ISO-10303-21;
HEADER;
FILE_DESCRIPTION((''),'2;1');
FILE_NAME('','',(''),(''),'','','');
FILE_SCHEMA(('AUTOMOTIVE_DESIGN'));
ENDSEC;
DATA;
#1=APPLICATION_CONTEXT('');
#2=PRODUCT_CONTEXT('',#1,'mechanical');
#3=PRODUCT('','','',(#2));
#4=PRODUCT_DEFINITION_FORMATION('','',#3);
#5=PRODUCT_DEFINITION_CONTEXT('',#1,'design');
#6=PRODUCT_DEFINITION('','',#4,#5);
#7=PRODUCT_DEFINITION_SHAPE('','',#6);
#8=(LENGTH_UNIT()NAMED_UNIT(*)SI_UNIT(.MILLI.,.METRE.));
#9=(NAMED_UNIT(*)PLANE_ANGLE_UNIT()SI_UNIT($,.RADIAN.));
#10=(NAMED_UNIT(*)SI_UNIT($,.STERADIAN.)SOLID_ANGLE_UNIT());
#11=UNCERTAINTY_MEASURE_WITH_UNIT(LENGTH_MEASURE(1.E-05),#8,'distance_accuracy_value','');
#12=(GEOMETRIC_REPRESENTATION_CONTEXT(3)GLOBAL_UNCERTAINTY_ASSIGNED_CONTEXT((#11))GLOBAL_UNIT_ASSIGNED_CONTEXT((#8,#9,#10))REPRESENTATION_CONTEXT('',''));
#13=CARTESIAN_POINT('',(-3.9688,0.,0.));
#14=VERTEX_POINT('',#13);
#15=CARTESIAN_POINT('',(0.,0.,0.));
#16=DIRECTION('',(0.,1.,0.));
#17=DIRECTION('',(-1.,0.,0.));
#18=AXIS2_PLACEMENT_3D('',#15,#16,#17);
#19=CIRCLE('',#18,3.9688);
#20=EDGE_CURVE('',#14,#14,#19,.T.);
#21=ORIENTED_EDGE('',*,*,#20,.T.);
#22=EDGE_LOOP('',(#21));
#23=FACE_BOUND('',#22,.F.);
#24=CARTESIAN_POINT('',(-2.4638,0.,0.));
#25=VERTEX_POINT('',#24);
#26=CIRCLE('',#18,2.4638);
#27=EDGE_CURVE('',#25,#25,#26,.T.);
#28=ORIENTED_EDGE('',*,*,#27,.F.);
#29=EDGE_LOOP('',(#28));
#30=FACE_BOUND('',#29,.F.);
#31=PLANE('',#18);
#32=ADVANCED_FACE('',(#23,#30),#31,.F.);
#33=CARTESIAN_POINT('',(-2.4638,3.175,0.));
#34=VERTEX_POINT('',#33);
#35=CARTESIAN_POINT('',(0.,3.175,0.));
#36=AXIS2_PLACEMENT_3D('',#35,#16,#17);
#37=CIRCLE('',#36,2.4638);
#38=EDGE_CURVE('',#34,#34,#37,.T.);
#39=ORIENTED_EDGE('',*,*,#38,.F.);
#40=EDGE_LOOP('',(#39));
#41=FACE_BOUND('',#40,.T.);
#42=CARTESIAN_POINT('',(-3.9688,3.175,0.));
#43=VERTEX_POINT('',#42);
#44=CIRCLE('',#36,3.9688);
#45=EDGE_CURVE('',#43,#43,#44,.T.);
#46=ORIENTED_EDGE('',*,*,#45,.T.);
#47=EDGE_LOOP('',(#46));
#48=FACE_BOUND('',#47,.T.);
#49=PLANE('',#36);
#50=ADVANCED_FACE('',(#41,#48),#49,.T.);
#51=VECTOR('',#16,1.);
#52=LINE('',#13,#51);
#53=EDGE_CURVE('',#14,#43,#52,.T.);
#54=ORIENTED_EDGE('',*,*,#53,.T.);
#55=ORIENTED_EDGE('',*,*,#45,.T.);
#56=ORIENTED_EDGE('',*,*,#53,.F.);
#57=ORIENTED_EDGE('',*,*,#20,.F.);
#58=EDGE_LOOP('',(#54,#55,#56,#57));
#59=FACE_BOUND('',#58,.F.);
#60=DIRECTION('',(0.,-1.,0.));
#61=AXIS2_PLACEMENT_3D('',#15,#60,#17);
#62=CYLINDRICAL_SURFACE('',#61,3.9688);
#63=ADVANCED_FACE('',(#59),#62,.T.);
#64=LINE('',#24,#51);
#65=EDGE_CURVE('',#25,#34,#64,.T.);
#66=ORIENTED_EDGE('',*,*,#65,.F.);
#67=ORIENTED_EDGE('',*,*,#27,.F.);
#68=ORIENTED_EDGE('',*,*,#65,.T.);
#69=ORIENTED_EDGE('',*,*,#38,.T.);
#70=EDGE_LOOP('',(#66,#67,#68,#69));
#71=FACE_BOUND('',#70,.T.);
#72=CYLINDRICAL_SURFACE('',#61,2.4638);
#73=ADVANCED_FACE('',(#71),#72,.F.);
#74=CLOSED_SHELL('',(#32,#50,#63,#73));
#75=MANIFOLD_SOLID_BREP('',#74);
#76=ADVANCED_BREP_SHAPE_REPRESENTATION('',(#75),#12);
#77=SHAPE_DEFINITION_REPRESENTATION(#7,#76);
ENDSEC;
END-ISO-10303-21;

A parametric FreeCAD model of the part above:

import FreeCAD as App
import Part
import Sketcher
from FreeCAD import Vector
Q = App.Units.Quantity

doc = App.newDocument("Part")
params = doc.addObject("Spreadsheet::Sheet", "Params")
for row, (alias, value) in enumerate([
    ("sketch1_diameter", "0.3125 in"),
    ("sketch1_diameter2", "0.194 in"),
    ("pad1_length", "0.125 in"),
], start=1):
    params.set(f"A{row}", alias)
    params.set(f"B{row}", "=" + value)
    params.setAlias(f"B{row}", alias)

body = doc.addObject("PartDesign::Body", "Body")

sketch1 = body.newObject("Sketcher::SketchObject", "Sketch")
sketch1.AttachmentSupport = (doc.getObject("XZ_Plane"), [""])
sketch1.MapMode = "FlatFace"
sketch1.addGeometry([
    Part.Circle(Vector(0, 0, 0), Vector(0, 0, 1), 4),
    Part.Circle(Vector(0, 0, 0), Vector(0, 0, 1), 2.5),
], False)
sketch1.addConstraint([
    Sketcher.Constraint("Coincident", 0, 3, -1, 1),
    Sketcher.Constraint("Coincident", 1, 3, -1, 1),
    Sketcher.Constraint("Diameter", 0, Q("0.3125 in")),
    Sketcher.Constraint("Diameter", 1, Q("0.194 in")),
])
sketch1.setExpression("Constraints[2]", "Params.sketch1_diameter")
sketch1.setExpression("Constraints[3]", "Params.sketch1_diameter2")
pad1 = body.newObject("PartDesign::Pad", "Pad")
pad1.Profile = sketch1
pad1.setExpression("Length", "Params.pad1_length")
pad1.Reversed = True

doc.recompute()
